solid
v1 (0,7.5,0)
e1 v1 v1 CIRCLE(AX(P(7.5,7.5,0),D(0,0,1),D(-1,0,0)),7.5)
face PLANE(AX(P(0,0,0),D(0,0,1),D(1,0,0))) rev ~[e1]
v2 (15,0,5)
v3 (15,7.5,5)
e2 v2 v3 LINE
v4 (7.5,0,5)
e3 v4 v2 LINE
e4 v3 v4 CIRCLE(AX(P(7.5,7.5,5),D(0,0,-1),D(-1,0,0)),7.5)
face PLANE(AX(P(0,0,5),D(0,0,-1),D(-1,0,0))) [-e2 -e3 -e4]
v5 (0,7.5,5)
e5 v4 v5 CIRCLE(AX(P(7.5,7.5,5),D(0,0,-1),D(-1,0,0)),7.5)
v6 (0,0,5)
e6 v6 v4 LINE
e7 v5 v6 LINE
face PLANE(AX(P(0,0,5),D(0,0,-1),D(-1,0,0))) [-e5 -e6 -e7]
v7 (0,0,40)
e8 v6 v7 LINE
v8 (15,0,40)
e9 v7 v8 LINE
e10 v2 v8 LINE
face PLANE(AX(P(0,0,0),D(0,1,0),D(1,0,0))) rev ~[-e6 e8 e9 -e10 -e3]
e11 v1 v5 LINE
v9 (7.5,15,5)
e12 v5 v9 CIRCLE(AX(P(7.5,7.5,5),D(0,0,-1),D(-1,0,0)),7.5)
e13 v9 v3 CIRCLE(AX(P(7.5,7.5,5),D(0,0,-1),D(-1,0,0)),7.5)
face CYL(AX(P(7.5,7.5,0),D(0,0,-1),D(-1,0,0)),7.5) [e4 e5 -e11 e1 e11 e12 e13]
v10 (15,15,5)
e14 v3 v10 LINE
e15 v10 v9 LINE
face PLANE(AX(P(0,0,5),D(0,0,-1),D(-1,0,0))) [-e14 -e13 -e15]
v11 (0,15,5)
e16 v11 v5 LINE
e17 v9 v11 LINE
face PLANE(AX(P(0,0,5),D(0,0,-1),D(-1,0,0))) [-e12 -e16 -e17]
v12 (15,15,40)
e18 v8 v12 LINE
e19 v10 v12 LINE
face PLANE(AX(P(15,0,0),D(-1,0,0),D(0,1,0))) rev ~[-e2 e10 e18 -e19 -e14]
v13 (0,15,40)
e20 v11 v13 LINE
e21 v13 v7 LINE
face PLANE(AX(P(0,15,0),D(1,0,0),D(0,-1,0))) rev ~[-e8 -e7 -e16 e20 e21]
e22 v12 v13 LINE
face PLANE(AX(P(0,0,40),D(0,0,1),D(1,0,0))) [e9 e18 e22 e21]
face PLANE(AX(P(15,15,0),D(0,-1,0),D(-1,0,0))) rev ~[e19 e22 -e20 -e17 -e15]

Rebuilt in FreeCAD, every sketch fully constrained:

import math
import FreeCAD as App
import Part
import Sketcher
Q = App.Units.Quantity


def add_polygon(sketch, points):
    """Adds a closed chain of lines whose ends are joined by coincident constraints."""
    first, n = sketch.GeometryCount, len(points)
    for a, b in zip(points, points[1:] + points[:1]):
        sketch.addGeometry(Part.LineSegment(App.Vector(*a, 0), App.Vector(*b, 0)), False)
    for i in range(n):
        sketch.addConstraint(Sketcher.Constraint("Coincident", first + i, 2, first + (i + 1) % n, 1))

doc = App.newDocument("Part")
body = doc.addObject("PartDesign::Body", "Body")

# Sketch on XY plane
sketch1 = body.newObject("Sketcher::SketchObject", "Sketch")
sketch1.AttachmentSupport = (doc.getObject("XY_Plane"), [""])
sketch1.MapMode = "FlatFace"
add_polygon(sketch1, [(0, 15), (0, 0), (15, 0), (15, 15)])  # lines 0-3
sketch1.addConstraint([
    Sketcher.Constraint("Vertical", 0),
    Sketcher.Constraint("Horizontal", 1),
    Sketcher.Constraint("Vertical", 2),
    Sketcher.Constraint("Horizontal", 3),
    Sketcher.Constraint("Coincident", 0, 2, -1, 1),
    Sketcher.Constraint("Equal", 3, 0),
    Sketcher.Constraint("DistanceX", 1, 1, 1, 2, Q("15 mm")),
])
pad1 = body.newObject("PartDesign::Pad", "Pad")
pad1.Profile = sketch1
pad1.Length = 40

# Sketch on XY plane
sketch2 = body.newObject("Sketcher::SketchObject", "Sketch001")
sketch2.AttachmentSupport = (doc.getObject("XY_Plane"), [""])
sketch2.MapMode = "FlatFace"
sketch2.addGeometry([
    Part.LineSegment(App.Vector(0, 0, 0), App.Vector(0, 7.5, 0)),  # 0
    Part.ArcOfCircle(Part.Circle(App.Vector(7.5, 7.5, 0), App.Vector(0, 0, 1), 7.5), math.radians(180), math.radians(270)),  # 1
    Part.LineSegment(App.Vector(7.5, 0, 0), App.Vector(0, 0, 0)),  # 2
    Part.ArcOfCircle(Part.Circle(App.Vector(7.5, 7.5, 0), App.Vector(0, 0, 1), 7.5), math.radians(90), math.radians(180)),  # 3
    Part.LineSegment(App.Vector(0, 7.5, 0), App.Vector(0, 15, 0)),  # 4
    Part.LineSegment(App.Vector(0, 15, 0), App.Vector(7.5, 15, 0)),  # 5
    Part.ArcOfCircle(Part.Circle(App.Vector(7.5, 7.5, 0), App.Vector(0, 0, 1), 7.5), math.radians(0), math.radians(90)),  # 6
    Part.LineSegment(App.Vector(7.5, 15, 0), App.Vector(15, 15, 0)),  # 7
    Part.LineSegment(App.Vector(15, 15, 0), App.Vector(15, 7.5, 0)),  # 8
    Part.LineSegment(App.Vector(15, 0, 0), App.Vector(7.5, 0, 0)),  # 9
    Part.ArcOfCircle(Part.Circle(App.Vector(7.5, 7.5, 0), App.Vector(0, 0, 1), 7.5), math.radians(-90), math.radians(0)),  # 10
    Part.LineSegment(App.Vector(15, 7.5, 0), App.Vector(15, 0, 0)),  # 11
], False)
sketch2.addConstraint([
    Sketcher.Constraint("Tangent", 0, 2, 1, 1),
    Sketcher.Constraint("Tangent", 1, 2, 2, 1),
    Sketcher.Constraint("Coincident", 2, 2, 0, 1),
    Sketcher.Constraint("Tangent", 3, 2, 4, 1),
    Sketcher.Constraint("Coincident", 4, 2, 5, 1),
    Sketcher.Constraint("Tangent", 5, 2, 3, 1),
    Sketcher.Constraint("Tangent", 6, 2, 7, 1),
    Sketcher.Constraint("Coincident", 7, 2, 8, 1),
    Sketcher.Constraint("Tangent", 8, 2, 6, 1),
    Sketcher.Constraint("Tangent", 9, 2, 10, 1),
    Sketcher.Constraint("Tangent", 10, 2, 11, 1),
    Sketcher.Constraint("Coincident", 11, 2, 9, 1),
    Sketcher.Constraint("Vertical", 0),
    Sketcher.Constraint("Horizontal", 2),
    Sketcher.Constraint("Vertical", 4),
    Sketcher.Constraint("Horizontal", 5),
    Sketcher.Constraint("Horizontal", 7),
    Sketcher.Constraint("Vertical", 8),
    Sketcher.Constraint("Horizontal", 9),
    Sketcher.Constraint("Vertical", 11),
    Sketcher.Constraint("Coincident", 2, 2, -1, 1),
    Sketcher.Constraint("Coincident", 3, 3, 1, 3),
    Sketcher.Constraint("Coincident", 6, 3, 1, 3),
    Sketcher.Constraint("Coincident", 10, 3, 1, 3),
    Sketcher.Constraint("Equal", 1, 3),
    Sketcher.Constraint("Equal", 3, 6),
    Sketcher.Constraint("Equal", 6, 10),
    Sketcher.Constraint("Radius", 1, Q("7.5 mm")),
])
pocket1 = body.newObject("PartDesign::Pocket", "Pocket")
pocket1.Profile = sketch2
pocket1.Length = 5
pocket1.Reversed = True

doc.recompute()
